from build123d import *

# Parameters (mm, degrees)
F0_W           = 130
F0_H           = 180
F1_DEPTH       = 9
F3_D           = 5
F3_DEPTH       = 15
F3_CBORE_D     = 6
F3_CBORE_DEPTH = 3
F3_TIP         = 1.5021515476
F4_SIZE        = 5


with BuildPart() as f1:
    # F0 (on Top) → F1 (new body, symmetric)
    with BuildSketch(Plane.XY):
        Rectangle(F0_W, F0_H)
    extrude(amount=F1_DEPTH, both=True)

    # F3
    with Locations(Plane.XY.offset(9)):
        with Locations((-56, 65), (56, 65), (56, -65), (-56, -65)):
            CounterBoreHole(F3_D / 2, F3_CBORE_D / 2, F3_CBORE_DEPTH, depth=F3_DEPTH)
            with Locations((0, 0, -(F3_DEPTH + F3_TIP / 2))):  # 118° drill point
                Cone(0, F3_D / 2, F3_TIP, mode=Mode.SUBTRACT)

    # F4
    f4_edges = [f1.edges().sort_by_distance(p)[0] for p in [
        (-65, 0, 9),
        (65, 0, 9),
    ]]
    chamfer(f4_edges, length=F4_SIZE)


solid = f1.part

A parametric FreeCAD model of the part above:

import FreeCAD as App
import Part
import Sketcher


def edges_at(feature, points):
    """Names of the edges that pass closest to the given points."""
    edges = feature.Shape.Edges
    near = lambda p: min(range(len(edges)), key=lambda i: edges[i].distToShape(Part.Vertex(*p))[0])
    return sorted({f"Edge{near(p) + 1}" for p in points})

doc = App.newDocument("Part")
params = doc.addObject("Spreadsheet::Sheet", "Params")
for row, (alias, value) in enumerate([
    ("sketch1_width", "130 mm"),
    ("sketch1_height", "180 mm"),
    ("pad1_length", "18 mm"),
    ("sketch2_diameter", "5 mm"),
    ("hole_diameter", "5 mm"),
    ("hole_depth", "15 mm"),
    ("hole_cbore_diameter", "6 mm"),
    ("hole_cbore_depth", "3 mm"),
    ("chamfer_size", "5 mm"),
], start=1):
    params.set(f"A{row}", alias)
    params.set(f"B{row}", "=" + value)
    params.setAlias(f"B{row}", alias)

body = doc.addObject("PartDesign::Body", "Body")

# Sketch on XY plane
sketch1 = body.newObject("Sketcher::SketchObject", "Sketch")
sketch1.AttachmentSupport = (doc.getObject("XY_Plane"), [""])
sketch1.MapMode = "FlatFace"
sketch1.addGeometry([
    Part.LineSegment(App.Vector(-65, 90, 0), App.Vector(-65, -90, 0)),
    Part.LineSegment(App.Vector(-65, -90, 0), App.Vector(65, -90, 0)),
    Part.LineSegment(App.Vector(65, -90, 0), App.Vector(65, 90, 0)),
    Part.LineSegment(App.Vector(65, 90, 0), App.Vector(-65, 90, 0)),
], False)
sketch1.addConstraint([
    Sketcher.Constraint("Coincident", 0, 2, 1, 1),
    Sketcher.Constraint("Coincident", 1, 2, 2, 1),
    Sketcher.Constraint("Coincident", 2, 2, 3, 1),
    Sketcher.Constraint("Coincident", 3, 2, 0, 1),
    Sketcher.Constraint("Vertical", 0),
    Sketcher.Constraint("Horizontal", 1),
    Sketcher.Constraint("Vertical", 2),
    Sketcher.Constraint("Horizontal", 3),
    Sketcher.Constraint("Symmetric", 0, 2, 2, 2, -1, 1),
    Sketcher.Constraint("DistanceX", 1, 1, 1, 2, 130.0),
    Sketcher.Constraint("DistanceY", 0, 2, 0, 1, 180.0),
])
sketch1.setExpression("Constraints[9]", "Params.sketch1_width")
sketch1.setExpression("Constraints[10]", "Params.sketch1_height")
pad1 = body.newObject("PartDesign::Pad", "Pad")
pad1.Profile = sketch1
pad1.setExpression("Length", "Params.pad1_length")
pad1.Midplane = True

# Sketch on XY plane
sketch2 = body.newObject("Sketcher::SketchObject", "Sketch001")
sketch2.AttachmentSupport = (doc.getObject("XY_Plane"), [""])
sketch2.MapMode = "FlatFace"
sketch2.AttachmentOffset = App.Placement(App.Vector(0, 0, 9), App.Rotation())
sketch2.addGeometry([
    Part.Circle(App.Vector(-56, 65, 0), App.Vector(0, 0, 1), 2.5),
    Part.Circle(App.Vector(56, 65, 0), App.Vector(0, 0, 1), 2.5),
    Part.Circle(App.Vector(56, -65, 0), App.Vector(0, 0, 1), 2.5),
    Part.Circle(App.Vector(-56, -65, 0), App.Vector(0, 0, 1), 2.5),
], False)
sketch2.addConstraint([
    Sketcher.Constraint("Equal", 0, 1),
    Sketcher.Constraint("Equal", 1, 2),
    Sketcher.Constraint("Equal", 2, 3),
    Sketcher.Constraint("Symmetric", 0, 3, 2, 3, -1, 1),
    Sketcher.Constraint("Symmetric", 1, 3, 3, 3, -1, 1),
    Sketcher.Constraint("Symmetric", 0, 3, 1, 3, -2),
    Sketcher.Constraint("Diameter", 0, 5.0),
    Sketcher.Constraint("DistanceX", 0, 3, -1, 1, 56.0),
    Sketcher.Constraint("DistanceY", -1, 1, 0, 3, 65.0),
])
sketch2.setExpression("Constraints[6]", "Params.sketch2_diameter")
doc.recompute()
hole = body.newObject("PartDesign::Hole", "Hole")
hole.Profile = sketch2
hole.ThreadType = "None"
hole.setExpression("Diameter", "Params.hole_diameter")
hole.DepthType = "Dimension"
hole.setExpression("Depth", "Params.hole_depth")
hole.DrillPoint = "Angled"
hole.DrillPointAngle = 118
hole.HoleCutType = "Counterbore"
hole.setExpression("HoleCutDiameter", "Params.hole_cbore_diameter")
hole.setExpression("HoleCutDepth", "Params.hole_cbore_depth")
doc.recompute()

chamfer = body.newObject("PartDesign::Chamfer", "Chamfer")
chamfer.Base = (hole, edges_at(hole, [(-65, 0, 9), (65, 0, 9)]))
chamfer.setExpression("Size", "Params.chamfer_size")

doc.recompute()
